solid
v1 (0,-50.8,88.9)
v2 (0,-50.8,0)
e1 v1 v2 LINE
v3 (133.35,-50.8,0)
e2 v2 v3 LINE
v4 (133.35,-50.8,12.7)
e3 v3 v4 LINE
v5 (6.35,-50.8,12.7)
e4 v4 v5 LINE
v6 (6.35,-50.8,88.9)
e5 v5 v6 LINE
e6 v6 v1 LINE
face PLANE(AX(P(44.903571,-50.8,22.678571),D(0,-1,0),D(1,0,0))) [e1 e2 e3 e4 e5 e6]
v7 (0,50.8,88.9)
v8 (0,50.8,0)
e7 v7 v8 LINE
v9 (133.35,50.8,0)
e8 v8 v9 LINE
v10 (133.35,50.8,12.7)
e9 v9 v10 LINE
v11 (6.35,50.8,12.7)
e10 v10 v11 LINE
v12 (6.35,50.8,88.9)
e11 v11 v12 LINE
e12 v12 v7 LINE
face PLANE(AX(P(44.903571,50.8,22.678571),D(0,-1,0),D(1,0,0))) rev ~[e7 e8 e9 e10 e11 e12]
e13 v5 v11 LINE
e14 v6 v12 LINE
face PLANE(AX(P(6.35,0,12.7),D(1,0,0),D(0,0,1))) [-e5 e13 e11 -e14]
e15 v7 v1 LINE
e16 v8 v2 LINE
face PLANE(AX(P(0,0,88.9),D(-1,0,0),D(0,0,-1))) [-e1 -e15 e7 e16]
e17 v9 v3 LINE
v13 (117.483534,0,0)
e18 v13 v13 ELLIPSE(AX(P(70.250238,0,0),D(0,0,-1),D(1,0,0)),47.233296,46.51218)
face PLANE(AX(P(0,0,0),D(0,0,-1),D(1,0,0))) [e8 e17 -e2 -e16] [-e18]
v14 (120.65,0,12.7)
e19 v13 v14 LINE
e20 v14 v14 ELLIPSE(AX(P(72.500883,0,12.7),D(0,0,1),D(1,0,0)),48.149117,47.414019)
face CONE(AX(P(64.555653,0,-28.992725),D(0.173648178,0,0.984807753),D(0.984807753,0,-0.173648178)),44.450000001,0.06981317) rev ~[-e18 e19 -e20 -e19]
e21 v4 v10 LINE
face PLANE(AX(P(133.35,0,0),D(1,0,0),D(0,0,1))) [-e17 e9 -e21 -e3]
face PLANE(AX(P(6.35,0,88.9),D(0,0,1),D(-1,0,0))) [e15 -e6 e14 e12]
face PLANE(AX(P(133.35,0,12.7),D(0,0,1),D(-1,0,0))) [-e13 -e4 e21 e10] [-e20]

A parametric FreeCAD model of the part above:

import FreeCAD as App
import Part
import Sketcher
from FreeCAD import Vector
Q = App.Units.Quantity


def add_polygon(sketch, points):
    """Adds a closed chain of lines whose ends are joined by coincident constraints."""
    first, n = sketch.GeometryCount, len(points)
    for a, b in zip(points, points[1:] + points[:1]):
        sketch.addGeometry(Part.LineSegment(App.Vector(*a, 0), App.Vector(*b, 0)), False)
    for i in range(n):
        sketch.addConstraint(Sketcher.Constraint("Coincident", first + i, 2, first + (i + 1) % n, 1))

doc = App.newDocument("Part")
body = doc.addObject("PartDesign::Body", "Body")

# Sketch on XZ plane
sketch1 = doc.addObject("Sketcher::SketchObject", "Sketch")
body.addObject(sketch1)
sketch1.AttachmentSupport = (doc.XZ_Plane, [""])
sketch1.MapMode = "FlatFace"
add_polygon(sketch1, [(6, 89), (0, 89), (0, 0), (133, 0), (133, 13), (6, 13)])  # lines 0-5
sketch1.addConstraint(Sketcher.Constraint("Horizontal", 0))
sketch1.addConstraint(Sketcher.Constraint("Vertical", 1))
sketch1.addConstraint(Sketcher.Constraint("Horizontal", 2))
sketch1.addConstraint(Sketcher.Constraint("Vertical", 3))
sketch1.addConstraint(Sketcher.Constraint("Horizontal", 4))
sketch1.addConstraint(Sketcher.Constraint("Vertical", 5))
sketch1.addConstraint(Sketcher.Constraint("Coincident", 1, 2, -1, 1))
sketch1.addConstraint(Sketcher.Constraint("DistanceX", 4, 2, 4, 1, Q("5 in")))
sketch1.addConstraint(Sketcher.Constraint("DistanceY", 5, 1, 5, 2, Q("3 in")))
sketch1.addConstraint(Sketcher.Constraint("DistanceY", 1, 2, 1, 1, Q("3.5 in")))
sketch1.addConstraint(Sketcher.Constraint("DistanceX", 0, 2, 0, 1, Q("0.25 in")))
pad1 = doc.addObject("PartDesign::Pad", "Pad")
body.addObject(pad1)
pad1.Profile = sketch1
pad1.Length = Q("4 in")
pad1.Midplane = True

# Sketch on XZ plane
sketch2 = doc.addObject("Sketcher::SketchObject", "Sketch001")
body.addObject(sketch2)
sketch2.AttachmentSupport = (doc.XZ_Plane, [""])
sketch2.MapMode = "FlatFace"
add_polygon(sketch2, [(73, 21), (65, -29), (108, -37), (121, 13)])  # lines 0-3
sketch2.addGeometry(Part.LineSegment(Vector(65, -29, 0), Vector(73, 21, 0)), True)  # axis
sketch2.addConstraint(Sketcher.Constraint("Coincident", 4, 1, 0, 2))
sketch2.addConstraint(Sketcher.Constraint("Coincident", 4, 2, 3, 2))
sketch2.addConstraint(Sketcher.Constraint("Perpendicular", 0, 1))
sketch2.addConstraint(Sketcher.Constraint("Parallel", 1, 3))
sketch2.addConstraint(Sketcher.Constraint("Distance", 0, Q("2 in")))
sketch2.addConstraint(Sketcher.Constraint("Angle", 0, Q("-100 deg")))
sketch2.addConstraint(Sketcher.Constraint("Angle", 2, Q("76 deg")))
sketch2.addConstraint(Sketcher.Constraint("DistanceY", -1, 1, 2, 2, Q("0.5 in")))
sketch2.addConstraint(Sketcher.Constraint("Distance", 1, Q("1.75 in")))
sketch2.addConstraint(Sketcher.Constraint("DistanceX", -1, 1, 2, 2, Q("4.75 in")))
groove = doc.addObject("PartDesign::Groove", "Groove")
body.addObject(groove)
groove.Profile = sketch2
groove.ReferenceAxis = (sketch2, ["Axis0"])
groove.Angle = 360

doc.recompute()
